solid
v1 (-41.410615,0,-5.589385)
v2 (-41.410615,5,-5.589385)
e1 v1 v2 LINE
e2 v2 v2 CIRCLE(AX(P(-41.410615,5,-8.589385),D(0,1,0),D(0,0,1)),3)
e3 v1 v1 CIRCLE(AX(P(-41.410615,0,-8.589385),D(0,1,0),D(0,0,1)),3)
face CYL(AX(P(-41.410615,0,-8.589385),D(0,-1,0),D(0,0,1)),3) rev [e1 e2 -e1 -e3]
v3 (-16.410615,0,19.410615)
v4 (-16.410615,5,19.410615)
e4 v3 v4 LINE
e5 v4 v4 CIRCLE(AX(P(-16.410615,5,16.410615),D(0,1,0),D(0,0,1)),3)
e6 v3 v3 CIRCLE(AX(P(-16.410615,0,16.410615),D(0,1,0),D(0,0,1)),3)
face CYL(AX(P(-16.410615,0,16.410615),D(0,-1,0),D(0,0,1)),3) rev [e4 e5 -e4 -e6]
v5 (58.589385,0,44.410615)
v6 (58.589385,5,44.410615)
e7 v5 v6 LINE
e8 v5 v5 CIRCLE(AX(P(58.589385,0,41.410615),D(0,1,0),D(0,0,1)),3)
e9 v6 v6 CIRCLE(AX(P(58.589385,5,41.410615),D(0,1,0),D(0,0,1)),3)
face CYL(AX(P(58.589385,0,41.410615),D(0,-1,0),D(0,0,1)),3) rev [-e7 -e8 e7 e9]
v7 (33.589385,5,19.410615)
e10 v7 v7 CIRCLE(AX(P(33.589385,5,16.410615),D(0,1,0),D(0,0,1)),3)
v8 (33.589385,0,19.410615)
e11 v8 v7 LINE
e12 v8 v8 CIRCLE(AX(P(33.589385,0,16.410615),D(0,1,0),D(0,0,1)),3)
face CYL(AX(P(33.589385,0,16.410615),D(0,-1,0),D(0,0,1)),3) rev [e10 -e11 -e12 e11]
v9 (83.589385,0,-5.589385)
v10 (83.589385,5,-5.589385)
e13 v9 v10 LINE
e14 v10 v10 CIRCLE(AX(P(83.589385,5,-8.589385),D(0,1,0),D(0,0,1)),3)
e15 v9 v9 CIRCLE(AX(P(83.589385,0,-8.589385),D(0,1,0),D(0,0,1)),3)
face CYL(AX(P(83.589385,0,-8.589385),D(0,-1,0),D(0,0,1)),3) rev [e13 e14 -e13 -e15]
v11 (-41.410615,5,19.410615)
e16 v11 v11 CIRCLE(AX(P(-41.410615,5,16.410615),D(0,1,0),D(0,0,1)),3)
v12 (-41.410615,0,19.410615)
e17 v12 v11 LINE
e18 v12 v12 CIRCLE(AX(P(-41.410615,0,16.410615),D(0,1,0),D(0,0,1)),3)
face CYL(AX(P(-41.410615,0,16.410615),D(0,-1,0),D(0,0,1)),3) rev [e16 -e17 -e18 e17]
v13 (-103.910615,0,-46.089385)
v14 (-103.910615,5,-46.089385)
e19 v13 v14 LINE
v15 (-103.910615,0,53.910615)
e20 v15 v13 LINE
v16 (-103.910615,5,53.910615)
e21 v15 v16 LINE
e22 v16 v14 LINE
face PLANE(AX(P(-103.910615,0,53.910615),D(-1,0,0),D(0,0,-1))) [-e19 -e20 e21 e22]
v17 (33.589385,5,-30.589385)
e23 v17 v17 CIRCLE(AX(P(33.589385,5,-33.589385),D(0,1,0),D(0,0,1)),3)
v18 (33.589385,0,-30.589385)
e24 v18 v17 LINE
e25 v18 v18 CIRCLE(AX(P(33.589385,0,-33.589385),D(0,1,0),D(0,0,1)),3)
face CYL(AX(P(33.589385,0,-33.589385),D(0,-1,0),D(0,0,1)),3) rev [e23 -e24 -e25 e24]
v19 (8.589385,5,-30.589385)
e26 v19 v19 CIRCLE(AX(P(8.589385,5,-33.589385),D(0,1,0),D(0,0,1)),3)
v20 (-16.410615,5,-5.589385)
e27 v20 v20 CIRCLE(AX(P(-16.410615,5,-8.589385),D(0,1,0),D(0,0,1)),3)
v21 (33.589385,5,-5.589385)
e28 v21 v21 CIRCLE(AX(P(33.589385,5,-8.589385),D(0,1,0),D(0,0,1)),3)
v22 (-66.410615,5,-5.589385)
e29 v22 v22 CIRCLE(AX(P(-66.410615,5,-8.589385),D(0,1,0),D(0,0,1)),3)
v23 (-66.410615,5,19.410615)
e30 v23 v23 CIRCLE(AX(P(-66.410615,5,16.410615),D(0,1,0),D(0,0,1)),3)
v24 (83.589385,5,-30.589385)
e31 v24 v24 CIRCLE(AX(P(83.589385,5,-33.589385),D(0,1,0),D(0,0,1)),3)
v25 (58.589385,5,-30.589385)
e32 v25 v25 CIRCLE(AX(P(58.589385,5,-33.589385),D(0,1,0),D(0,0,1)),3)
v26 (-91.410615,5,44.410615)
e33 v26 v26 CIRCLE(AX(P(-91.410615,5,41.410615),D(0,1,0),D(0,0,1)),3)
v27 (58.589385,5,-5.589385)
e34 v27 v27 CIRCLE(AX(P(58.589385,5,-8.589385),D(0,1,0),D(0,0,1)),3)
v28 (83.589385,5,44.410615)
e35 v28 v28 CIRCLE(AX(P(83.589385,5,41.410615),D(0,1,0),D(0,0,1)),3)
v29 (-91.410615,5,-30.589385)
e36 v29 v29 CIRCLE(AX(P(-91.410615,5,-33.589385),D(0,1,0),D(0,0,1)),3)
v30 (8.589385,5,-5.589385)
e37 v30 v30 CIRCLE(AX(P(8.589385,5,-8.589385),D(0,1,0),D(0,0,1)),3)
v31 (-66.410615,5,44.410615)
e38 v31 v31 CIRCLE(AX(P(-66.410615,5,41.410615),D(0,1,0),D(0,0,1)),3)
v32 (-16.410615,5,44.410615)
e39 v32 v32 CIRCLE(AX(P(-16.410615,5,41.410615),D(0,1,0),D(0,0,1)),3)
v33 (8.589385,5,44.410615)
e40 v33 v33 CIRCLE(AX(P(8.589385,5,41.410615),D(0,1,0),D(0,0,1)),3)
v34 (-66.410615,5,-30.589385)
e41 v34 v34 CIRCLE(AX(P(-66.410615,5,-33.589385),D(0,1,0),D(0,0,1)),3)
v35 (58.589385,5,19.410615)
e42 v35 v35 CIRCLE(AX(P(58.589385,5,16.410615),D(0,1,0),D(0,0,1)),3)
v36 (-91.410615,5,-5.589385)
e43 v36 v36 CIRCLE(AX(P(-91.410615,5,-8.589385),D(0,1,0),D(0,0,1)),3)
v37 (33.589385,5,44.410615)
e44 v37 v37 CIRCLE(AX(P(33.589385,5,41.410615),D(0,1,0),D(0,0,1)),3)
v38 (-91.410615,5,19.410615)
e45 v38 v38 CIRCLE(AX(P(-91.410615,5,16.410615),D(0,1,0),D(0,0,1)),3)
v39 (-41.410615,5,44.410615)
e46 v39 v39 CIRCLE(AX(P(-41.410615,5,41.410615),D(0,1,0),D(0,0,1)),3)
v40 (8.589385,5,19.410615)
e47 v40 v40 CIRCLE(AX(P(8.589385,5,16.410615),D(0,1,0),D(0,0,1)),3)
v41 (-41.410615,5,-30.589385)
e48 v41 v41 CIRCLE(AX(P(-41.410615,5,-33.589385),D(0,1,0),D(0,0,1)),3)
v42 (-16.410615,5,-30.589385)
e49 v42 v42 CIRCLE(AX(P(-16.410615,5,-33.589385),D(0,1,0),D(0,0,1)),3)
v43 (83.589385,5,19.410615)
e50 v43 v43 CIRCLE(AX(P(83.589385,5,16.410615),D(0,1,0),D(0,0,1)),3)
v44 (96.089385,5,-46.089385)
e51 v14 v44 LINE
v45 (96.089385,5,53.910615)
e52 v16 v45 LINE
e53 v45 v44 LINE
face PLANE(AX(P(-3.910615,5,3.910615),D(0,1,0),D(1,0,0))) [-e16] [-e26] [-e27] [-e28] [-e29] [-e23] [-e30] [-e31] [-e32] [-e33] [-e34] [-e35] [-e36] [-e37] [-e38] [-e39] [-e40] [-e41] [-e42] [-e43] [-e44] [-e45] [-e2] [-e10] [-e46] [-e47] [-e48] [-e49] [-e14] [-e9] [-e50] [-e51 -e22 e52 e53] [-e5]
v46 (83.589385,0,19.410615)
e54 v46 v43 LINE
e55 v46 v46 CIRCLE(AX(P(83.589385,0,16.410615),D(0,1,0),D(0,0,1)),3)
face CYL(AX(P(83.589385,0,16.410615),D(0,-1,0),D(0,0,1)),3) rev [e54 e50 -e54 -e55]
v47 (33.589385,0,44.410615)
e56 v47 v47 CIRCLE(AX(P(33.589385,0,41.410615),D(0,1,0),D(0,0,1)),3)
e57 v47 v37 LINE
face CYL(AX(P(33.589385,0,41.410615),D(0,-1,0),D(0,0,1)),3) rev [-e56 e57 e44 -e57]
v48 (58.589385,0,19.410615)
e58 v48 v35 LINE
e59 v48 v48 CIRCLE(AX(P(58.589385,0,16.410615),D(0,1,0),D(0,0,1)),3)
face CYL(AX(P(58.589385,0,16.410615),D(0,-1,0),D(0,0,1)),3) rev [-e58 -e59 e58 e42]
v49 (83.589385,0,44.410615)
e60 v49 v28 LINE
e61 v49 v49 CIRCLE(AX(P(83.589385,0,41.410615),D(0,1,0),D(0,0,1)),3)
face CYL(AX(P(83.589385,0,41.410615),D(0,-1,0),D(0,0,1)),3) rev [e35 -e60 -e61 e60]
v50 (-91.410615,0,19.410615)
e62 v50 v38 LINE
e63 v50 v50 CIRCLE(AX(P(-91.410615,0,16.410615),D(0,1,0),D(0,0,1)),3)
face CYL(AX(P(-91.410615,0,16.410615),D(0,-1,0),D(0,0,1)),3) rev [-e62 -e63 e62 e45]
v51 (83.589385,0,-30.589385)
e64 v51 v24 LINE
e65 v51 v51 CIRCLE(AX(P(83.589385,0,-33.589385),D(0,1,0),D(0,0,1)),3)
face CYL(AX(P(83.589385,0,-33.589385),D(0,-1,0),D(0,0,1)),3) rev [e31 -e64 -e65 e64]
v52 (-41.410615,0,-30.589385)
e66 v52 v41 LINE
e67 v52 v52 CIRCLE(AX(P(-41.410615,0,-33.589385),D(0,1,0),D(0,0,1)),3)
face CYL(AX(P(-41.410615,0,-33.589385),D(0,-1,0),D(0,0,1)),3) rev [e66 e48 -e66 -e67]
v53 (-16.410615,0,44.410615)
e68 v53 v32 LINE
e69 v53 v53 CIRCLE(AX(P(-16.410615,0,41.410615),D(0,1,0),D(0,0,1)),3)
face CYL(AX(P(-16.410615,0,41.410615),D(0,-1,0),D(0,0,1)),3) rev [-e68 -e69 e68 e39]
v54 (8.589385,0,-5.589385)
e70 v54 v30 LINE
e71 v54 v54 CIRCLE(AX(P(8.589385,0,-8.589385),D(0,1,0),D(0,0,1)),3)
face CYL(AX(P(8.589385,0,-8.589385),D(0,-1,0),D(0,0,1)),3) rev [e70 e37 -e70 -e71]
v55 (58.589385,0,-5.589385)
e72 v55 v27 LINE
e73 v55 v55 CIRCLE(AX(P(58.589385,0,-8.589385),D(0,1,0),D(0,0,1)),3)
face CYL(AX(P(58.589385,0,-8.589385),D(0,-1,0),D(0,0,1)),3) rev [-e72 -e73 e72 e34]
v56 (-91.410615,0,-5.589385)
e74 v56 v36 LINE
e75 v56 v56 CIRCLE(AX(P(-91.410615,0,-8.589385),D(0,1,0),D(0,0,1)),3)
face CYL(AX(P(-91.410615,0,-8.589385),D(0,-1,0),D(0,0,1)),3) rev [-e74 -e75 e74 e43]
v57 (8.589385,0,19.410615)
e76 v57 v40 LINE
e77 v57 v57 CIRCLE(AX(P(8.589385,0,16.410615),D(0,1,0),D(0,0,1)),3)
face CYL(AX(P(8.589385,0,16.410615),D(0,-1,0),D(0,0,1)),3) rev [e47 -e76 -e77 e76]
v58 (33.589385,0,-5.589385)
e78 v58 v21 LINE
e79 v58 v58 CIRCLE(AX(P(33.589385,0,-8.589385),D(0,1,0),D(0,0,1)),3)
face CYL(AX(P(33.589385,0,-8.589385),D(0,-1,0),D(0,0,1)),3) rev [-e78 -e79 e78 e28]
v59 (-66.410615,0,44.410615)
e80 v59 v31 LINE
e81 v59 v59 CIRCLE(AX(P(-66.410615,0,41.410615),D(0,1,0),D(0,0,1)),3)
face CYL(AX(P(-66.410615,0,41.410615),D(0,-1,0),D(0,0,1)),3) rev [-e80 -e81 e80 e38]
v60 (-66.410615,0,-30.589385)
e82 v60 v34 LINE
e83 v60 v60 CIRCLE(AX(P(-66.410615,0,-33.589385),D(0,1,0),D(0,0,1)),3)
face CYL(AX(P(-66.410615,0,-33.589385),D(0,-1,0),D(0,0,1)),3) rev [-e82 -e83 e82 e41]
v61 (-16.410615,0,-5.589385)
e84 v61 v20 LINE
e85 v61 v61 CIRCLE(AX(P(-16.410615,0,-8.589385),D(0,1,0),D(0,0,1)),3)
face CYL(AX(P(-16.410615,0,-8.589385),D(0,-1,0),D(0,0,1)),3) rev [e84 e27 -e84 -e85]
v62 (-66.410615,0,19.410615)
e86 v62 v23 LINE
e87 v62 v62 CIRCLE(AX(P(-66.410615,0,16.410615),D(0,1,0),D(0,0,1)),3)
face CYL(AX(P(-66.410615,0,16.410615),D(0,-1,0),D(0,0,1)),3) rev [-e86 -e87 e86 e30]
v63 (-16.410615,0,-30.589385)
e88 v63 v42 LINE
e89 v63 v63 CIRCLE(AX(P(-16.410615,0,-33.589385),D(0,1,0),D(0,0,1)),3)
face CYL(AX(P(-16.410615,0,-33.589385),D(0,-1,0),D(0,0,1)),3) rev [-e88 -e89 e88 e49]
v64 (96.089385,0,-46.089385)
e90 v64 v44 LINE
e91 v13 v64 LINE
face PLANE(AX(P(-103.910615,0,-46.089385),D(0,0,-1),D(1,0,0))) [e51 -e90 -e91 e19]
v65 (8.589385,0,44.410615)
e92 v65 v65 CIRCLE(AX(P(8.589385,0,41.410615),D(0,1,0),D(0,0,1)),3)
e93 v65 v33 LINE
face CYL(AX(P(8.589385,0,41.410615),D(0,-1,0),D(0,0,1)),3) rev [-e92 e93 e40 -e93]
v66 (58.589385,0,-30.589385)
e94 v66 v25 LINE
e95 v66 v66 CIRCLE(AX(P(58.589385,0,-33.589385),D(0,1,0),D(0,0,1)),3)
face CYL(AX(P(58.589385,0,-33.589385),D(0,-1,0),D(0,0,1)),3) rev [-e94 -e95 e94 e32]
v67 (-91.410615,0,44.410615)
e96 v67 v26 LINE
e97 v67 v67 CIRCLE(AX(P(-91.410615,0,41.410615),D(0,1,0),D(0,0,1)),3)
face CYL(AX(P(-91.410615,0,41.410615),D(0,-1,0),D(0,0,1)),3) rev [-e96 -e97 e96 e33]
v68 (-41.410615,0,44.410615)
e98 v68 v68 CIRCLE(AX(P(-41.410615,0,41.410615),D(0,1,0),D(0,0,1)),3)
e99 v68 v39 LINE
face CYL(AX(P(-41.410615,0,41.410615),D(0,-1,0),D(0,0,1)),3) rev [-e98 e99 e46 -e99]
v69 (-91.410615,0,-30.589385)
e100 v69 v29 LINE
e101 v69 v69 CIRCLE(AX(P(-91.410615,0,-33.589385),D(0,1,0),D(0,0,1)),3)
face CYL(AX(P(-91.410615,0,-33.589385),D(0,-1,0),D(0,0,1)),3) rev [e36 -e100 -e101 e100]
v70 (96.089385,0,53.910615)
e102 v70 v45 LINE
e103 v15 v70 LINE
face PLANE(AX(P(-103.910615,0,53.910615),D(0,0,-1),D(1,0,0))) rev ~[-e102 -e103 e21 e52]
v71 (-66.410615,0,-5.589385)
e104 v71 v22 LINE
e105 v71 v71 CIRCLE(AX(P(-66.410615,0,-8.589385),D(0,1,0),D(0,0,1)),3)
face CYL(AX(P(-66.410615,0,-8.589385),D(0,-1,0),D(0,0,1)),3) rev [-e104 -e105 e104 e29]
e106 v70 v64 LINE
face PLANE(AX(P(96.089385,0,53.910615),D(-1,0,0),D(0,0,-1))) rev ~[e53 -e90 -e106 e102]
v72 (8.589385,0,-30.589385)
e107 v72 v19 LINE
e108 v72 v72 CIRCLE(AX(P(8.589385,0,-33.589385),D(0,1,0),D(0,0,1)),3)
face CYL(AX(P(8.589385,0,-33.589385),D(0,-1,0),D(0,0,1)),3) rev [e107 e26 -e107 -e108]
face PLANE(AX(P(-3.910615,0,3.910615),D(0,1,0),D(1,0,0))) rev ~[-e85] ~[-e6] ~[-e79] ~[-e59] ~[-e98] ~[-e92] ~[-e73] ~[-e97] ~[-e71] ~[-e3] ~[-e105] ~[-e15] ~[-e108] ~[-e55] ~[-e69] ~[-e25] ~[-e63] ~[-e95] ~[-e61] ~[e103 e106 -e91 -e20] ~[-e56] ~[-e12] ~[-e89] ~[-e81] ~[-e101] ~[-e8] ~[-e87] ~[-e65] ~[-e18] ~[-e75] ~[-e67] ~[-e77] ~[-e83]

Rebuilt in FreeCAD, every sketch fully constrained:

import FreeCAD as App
import Part
import Sketcher
from FreeCAD import Vector


def add_polygon(sketch, points):
    """Adds a closed chain of lines whose ends are joined by coincident constraints."""
    first, n = sketch.GeometryCount, len(points)
    for a, b in zip(points, points[1:] + points[:1]):
        sketch.addGeometry(Part.LineSegment(App.Vector(*a, 0), App.Vector(*b, 0)), False)
    for i in range(n):
        sketch.addConstraint(Sketcher.Constraint("Coincident", first + i, 2, first + (i + 1) % n, 1))

doc = App.newDocument("Part")
body = doc.addObject("PartDesign::Body", "Body")

# Sketch on XZ plane
sketch1 = body.newObject("Sketcher::SketchObject", "Sketch")
sketch1.AttachmentSupport = (doc.getObject("XZ_Plane"), [""])
sketch1.MapMode = "FlatFace"
add_polygon(sketch1, [(-103.9, -46.1), (-103.9, 53.9), (96.1, 53.9), (96.1, -46.1)])  # lines 0-3
sketch1.addGeometry(Part.Circle(Vector(-91.4, 41.4, 0), Vector(0, 0, 1), 3), False)  # 4
sketch1.addGeometry(Part.Circle(Vector(-66.4, 41.4, 0), Vector(0, 0, 1), 3), False)  # 5
sketch1.addGeometry(Part.Circle(Vector(-41.4, 41.4, 0), Vector(0, 0, 1), 3), False)  # 6
sketch1.addGeometry(Part.Circle(Vector(-16.4, 41.4, 0), Vector(0, 0, 1), 3), False)  # 7
sketch1.addGeometry(Part.Circle(Vector(-91.4, 16.4, 0), Vector(0, 0, 1), 3), False)  # 8
sketch1.addGeometry(Part.Circle(Vector(-66.4, 16.4, 0), Vector(0, 0, 1), 3), False)  # 9
sketch1.addGeometry(Part.Circle(Vector(-41.4, 16.4, 0), Vector(0, 0, 1), 3), False)  # 10
sketch1.addGeometry(Part.Circle(Vector(-16.4, 16.4, 0), Vector(0, 0, 1), 3), False)  # 11
sketch1.addGeometry(Part.Circle(Vector(8.6, 41.4, 0), Vector(0, 0, 1), 3), False)  # 12
sketch1.addGeometry(Part.Circle(Vector(33.6, 41.4, 0), Vector(0, 0, 1), 3), False)  # 13
sketch1.addGeometry(Part.Circle(Vector(58.6, 41.4, 0), Vector(0, 0, 1), 3), False)  # 14
sketch1.addGeometry(Part.Circle(Vector(83.6, 41.4, 0), Vector(0, 0, 1), 3), False)  # 15
sketch1.addGeometry(Part.Circle(Vector(8.6, 16.4, 0), Vector(0, 0, 1), 3), False)  # 16
sketch1.addGeometry(Part.Circle(Vector(33.6, 16.4, 0), Vector(0, 0, 1), 3), False)  # 17
sketch1.addGeometry(Part.Circle(Vector(58.6, 16.4, 0), Vector(0, 0, 1), 3), False)  # 18
sketch1.addGeometry(Part.Circle(Vector(83.6, 16.4, 0), Vector(0, 0, 1), 3), False)  # 19
sketch1.addGeometry(Part.Circle(Vector(-91.4, -8.6, 0), Vector(0, 0, 1), 3), False)  # 20
sketch1.addGeometry(Part.Circle(Vector(-66.4, -8.6, 0), Vector(0, 0, 1), 3), False)  # 21
sketch1.addGeometry(Part.Circle(Vector(-41.4, -8.6, 0), Vector(0, 0, 1), 3), False)  # 22
sketch1.addGeometry(Part.Circle(Vector(-16.4, -8.6, 0), Vector(0, 0, 1), 3), False)  # 23
sketch1.addGeometry(Part.Circle(Vector(-91.4, -33.6, 0), Vector(0, 0, 1), 3), False)  # 24
sketch1.addGeometry(Part.Circle(Vector(-66.4, -33.6, 0), Vector(0, 0, 1), 3), False)  # 25
sketch1.addGeometry(Part.Circle(Vector(-41.4, -33.6, 0), Vector(0, 0, 1), 3), False)  # 26
sketch1.addGeometry(Part.Circle(Vector(-16.4, -33.6, 0), Vector(0, 0, 1), 3), False)  # 27
sketch1.addGeometry(Part.Circle(Vector(8.6, -8.6, 0), Vector(0, 0, 1), 3), False)  # 28
sketch1.addGeometry(Part.Circle(Vector(33.6, -8.6, 0), Vector(0, 0, 1), 3), False)  # 29
sketch1.addGeometry(Part.Circle(Vector(58.6, -8.6, 0), Vector(0, 0, 1), 3), False)  # 30
sketch1.addGeometry(Part.Circle(Vector(83.6, -8.6, 0), Vector(0, 0, 1), 3), False)  # 31
sketch1.addGeometry(Part.Circle(Vector(8.6, -33.6, 0), Vector(0, 0, 1), 3), False)  # 32
sketch1.addGeometry(Part.Circle(Vector(33.6, -33.6, 0), Vector(0, 0, 1), 3), False)  # 33
sketch1.addGeometry(Part.Circle(Vector(58.6, -33.6, 0), Vector(0, 0, 1), 3), False)  # 34
sketch1.addGeometry(Part.Circle(Vector(83.6, -33.6, 0), Vector(0, 0, 1), 3), False)  # 35
sketch1.addConstraint([
    Sketcher.Constraint("Vertical", 0),
    Sketcher.Constraint("Horizontal", 1),
    Sketcher.Constraint("Vertical", 2),
    Sketcher.Constraint("Horizontal", 3),
    Sketcher.Constraint("Equal", 4, 5),
    Sketcher.Constraint("Equal", 5, 6),
    Sketcher.Constraint("Equal", 6, 7),
    Sketcher.Constraint("Equal", 7, 8),
    Sketcher.Constraint("Equal", 8, 9),
    Sketcher.Constraint("Equal", 9, 10),
    Sketcher.Constraint("Equal", 10, 11),
    Sketcher.Constraint("Equal", 11, 12),
    Sketcher.Constraint("Equal", 12, 13),
    Sketcher.Constraint("Equal", 13, 14),
    Sketcher.Constraint("Equal", 14, 15),
    Sketcher.Constraint("Equal", 15, 16),
    Sketcher.Constraint("Equal", 16, 17),
    Sketcher.Constraint("Equal", 17, 18),
    Sketcher.Constraint("Equal", 18, 19),
    Sketcher.Constraint("Equal", 19, 20),
    Sketcher.Constraint("Equal", 20, 21),
    Sketcher.Constraint("Equal", 21, 22),
    Sketcher.Constraint("Equal", 22, 23),
    Sketcher.Constraint("Equal", 23, 24),
    Sketcher.Constraint("Equal", 24, 25),
    Sketcher.Constraint("Equal", 25, 26),
    Sketcher.Constraint("Equal", 26, 27),
    Sketcher.Constraint("Equal", 27, 28),
    Sketcher.Constraint("Equal", 28, 29),
    Sketcher.Constraint("Equal", 29, 30),
    Sketcher.Constraint("Equal", 30, 31),
    Sketcher.Constraint("Equal", 31, 32),
    Sketcher.Constraint("Equal", 32, 33),
    Sketcher.Constraint("Equal", 33, 34),
    Sketcher.Constraint("Equal", 34, 35),
    Sketcher.Constraint("Horizontal", 4, 3, 5, 3),
    Sketcher.Constraint("Horizontal", 5, 3, 6, 3),
    Sketcher.Constraint("Horizontal", 6, 3, 7, 3),
    Sketcher.Constraint("Horizontal", 8, 3, 9, 3),
    Sketcher.Constraint("Horizontal", 9, 3, 10, 3),
    Sketcher.Constraint("Horizontal", 10, 3, 11, 3),
    Sketcher.Constraint("Horizontal", 7, 3, 12, 3),
    Sketcher.Constraint("Horizontal", 12, 3, 13, 3),
    Sketcher.Constraint("Horizontal", 13, 3, 14, 3),
    Sketcher.Constraint("Horizontal", 14, 3, 15, 3),
    Sketcher.Constraint("Horizontal", 11, 3, 16, 3),
    Sketcher.Constraint("Horizontal", 16, 3, 17, 3),
    Sketcher.Constraint("Horizontal", 17, 3, 18, 3),
    Sketcher.Constraint("Horizontal", 18, 3, 19, 3),
    Sketcher.Constraint("Horizontal", 20, 3, 21, 3),
    Sketcher.Constraint("Horizontal", 21, 3, 22, 3),
    Sketcher.Constraint("Horizontal", 22, 3, 23, 3),
    Sketcher.Constraint("Horizontal", 24, 3, 25, 3),
    Sketcher.Constraint("Horizontal", 25, 3, 26, 3),
    Sketcher.Constraint("Horizontal", 26, 3, 27, 3),
    Sketcher.Constraint("Horizontal", 23, 3, 28, 3),
    Sketcher.Constraint("Horizontal", 28, 3, 29, 3),
    Sketcher.Constraint("Horizontal", 29, 3, 30, 3),
    Sketcher.Constraint("Horizontal", 30, 3, 31, 3),
    Sketcher.Constraint("Horizontal", 27, 3, 32, 3),
    Sketcher.Constraint("Horizontal", 32, 3, 33, 3),
    Sketcher.Constraint("Horizontal", 33, 3, 34, 3),
    Sketcher.Constraint("Horizontal", 34, 3, 35, 3),
    Sketcher.Constraint("Vertical", 4, 3, 8, 3),
    Sketcher.Constraint("Vertical", 5, 3, 9, 3),
    Sketcher.Constraint("Vertical", 6, 3, 10, 3),
    Sketcher.Constraint("Vertical", 7, 3, 11, 3),
    Sketcher.Constraint("Vertical", 12, 3, 16, 3),
    Sketcher.Constraint("Vertical", 13, 3, 17, 3),
    Sketcher.Constraint("Vertical", 14, 3, 18, 3),
    Sketcher.Constraint("Vertical", 15, 3, 19, 3),
    Sketcher.Constraint("Vertical", 8, 3, 20, 3),
    Sketcher.Constraint("Vertical", 9, 3, 21, 3),
    Sketcher.Constraint("Vertical", 10, 3, 22, 3),
    Sketcher.Constraint("Vertical", 11, 3, 23, 3),
    Sketcher.Constraint("Vertical", 20, 3, 24, 3),
    Sketcher.Constraint("Vertical", 21, 3, 25, 3),
    Sketcher.Constraint("Vertical", 22, 3, 26, 3),
    Sketcher.Constraint("Vertical", 23, 3, 27, 3),
    Sketcher.Constraint("Vertical", 16, 3, 28, 3),
    Sketcher.Constraint("Vertical", 17, 3, 29, 3),
    Sketcher.Constraint("Vertical", 18, 3, 30, 3),
    Sketcher.Constraint("Vertical", 19, 3, 31, 3),
    Sketcher.Constraint("Vertical", 28, 3, 32, 3),
    Sketcher.Constraint("Vertical", 29, 3, 33, 3),
    Sketcher.Constraint("Vertical", 30, 3, 34, 3),
    Sketcher.Constraint("Vertical", 31, 3, 35, 3),
    Sketcher.Constraint("Diameter", 4, 6.0),
    Sketcher.Constraint("DistanceX", 1, 1, 1, 2, 200.0),
    Sketcher.Constraint("DistanceY", 0, 1, 0, 2, 100.0),
    Sketcher.Constraint("DistanceX", 4, 3, 5, 3, 25.0),
    Sketcher.Constraint("DistanceX", 5, 3, 6, 3, 25.0),
    Sketcher.Constraint("DistanceX", 6, 3, 7, 3, 25.0),
    Sketcher.Constraint("DistanceY", 8, 3, 4, 3, 25.0),
    Sketcher.Constraint("DistanceX", 7, 3, 12, 3, 25.0),
    Sketcher.Constraint("DistanceX", 12, 3, 13, 3, 25.0),
    Sketcher.Constraint("DistanceX", 13, 3, 14, 3, 25.0),
    Sketcher.Constraint("DistanceX", 14, 3, 15, 3, 25.0),
    Sketcher.Constraint("DistanceY", 20, 3, 8, 3, 25.0),
    Sketcher.Constraint("DistanceY", 24, 3, 20, 3, 25.0),
    Sketcher.Constraint("DistanceX", 0, 2, 4, 3, 12.5),
    Sketcher.Constraint("DistanceY", 4, 3, 0, 2, 12.5),
    Sketcher.Constraint("DistanceX", 4, 3, -1, 1, 91.410615),
    Sketcher.Constraint("DistanceY", -1, 1, 4, 3, 41.410615),
])
pad1 = body.newObject("PartDesign::Pad", "Pad")
pad1.Profile = sketch1
pad1.Length = 5
pad1.Reversed = True

doc.recompute()
